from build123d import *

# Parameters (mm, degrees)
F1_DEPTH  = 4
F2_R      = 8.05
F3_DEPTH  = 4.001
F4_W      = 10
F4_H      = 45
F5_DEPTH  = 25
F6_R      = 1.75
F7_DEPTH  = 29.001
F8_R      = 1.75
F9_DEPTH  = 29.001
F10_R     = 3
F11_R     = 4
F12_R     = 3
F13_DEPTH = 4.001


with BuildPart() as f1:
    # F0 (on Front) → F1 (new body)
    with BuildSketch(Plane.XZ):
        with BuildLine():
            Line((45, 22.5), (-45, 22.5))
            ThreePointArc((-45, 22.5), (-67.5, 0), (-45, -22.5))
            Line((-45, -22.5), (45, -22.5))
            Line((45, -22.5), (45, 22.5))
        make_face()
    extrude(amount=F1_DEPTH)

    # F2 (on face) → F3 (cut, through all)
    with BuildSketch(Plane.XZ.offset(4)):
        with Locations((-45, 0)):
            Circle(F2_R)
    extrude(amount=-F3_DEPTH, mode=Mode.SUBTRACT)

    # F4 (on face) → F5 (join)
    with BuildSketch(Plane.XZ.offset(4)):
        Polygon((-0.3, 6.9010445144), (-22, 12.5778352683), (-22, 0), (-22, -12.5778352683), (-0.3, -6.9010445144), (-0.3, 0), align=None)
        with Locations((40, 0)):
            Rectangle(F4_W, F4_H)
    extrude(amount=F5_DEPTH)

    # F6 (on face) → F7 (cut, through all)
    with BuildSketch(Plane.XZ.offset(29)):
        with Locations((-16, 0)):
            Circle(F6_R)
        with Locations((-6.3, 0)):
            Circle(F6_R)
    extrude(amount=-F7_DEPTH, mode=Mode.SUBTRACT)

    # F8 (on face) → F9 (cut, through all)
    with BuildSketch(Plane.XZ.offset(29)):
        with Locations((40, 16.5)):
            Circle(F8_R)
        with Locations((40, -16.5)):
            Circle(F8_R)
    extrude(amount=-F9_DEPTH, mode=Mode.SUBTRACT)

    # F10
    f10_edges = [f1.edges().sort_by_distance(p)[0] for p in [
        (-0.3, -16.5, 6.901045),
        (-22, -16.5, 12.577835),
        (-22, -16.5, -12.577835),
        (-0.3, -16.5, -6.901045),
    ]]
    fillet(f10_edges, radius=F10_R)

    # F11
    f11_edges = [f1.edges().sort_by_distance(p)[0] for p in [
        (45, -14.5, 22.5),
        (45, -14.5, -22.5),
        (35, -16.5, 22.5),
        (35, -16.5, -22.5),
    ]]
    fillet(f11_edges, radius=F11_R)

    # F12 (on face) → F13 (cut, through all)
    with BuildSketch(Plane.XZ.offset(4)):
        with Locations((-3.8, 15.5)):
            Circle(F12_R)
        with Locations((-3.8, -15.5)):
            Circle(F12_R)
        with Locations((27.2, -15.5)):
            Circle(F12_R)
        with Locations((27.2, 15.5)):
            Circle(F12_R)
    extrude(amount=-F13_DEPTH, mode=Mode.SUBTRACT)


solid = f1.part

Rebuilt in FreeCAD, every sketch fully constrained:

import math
import FreeCAD as App
import Part
import Sketcher
from FreeCAD import Vector
Q = App.Units.Quantity


def edges_at(feature, points):
    """Names of the edges that pass closest to the given points."""
    edges = feature.Shape.Edges
    near = lambda p: min(range(len(edges)), key=lambda i: edges[i].distToShape(Part.Vertex(*p))[0])
    return sorted({f"Edge{near(p) + 1}" for p in points})


def add_polygon(sketch, points):
    """Adds a closed chain of lines whose ends are joined by coincident constraints."""
    first, n = sketch.GeometryCount, len(points)
    for a, b in zip(points, points[1:] + points[:1]):
        sketch.addGeometry(Part.LineSegment(App.Vector(*a, 0), App.Vector(*b, 0)), False)
    for i in range(n):
        sketch.addConstraint(Sketcher.Constraint("Coincident", first + i, 2, first + (i + 1) % n, 1))

doc = App.newDocument("Part")
params = doc.addObject("Spreadsheet::Sheet", "Params")
for row, (alias, value) in enumerate([
    ("sketch1_radius", "22.5 mm"),
    ("sketch1_width", "90 mm"),
    ("pad1_length", "4 mm"),
    ("sketch2_diameter", "16.1 mm"),
    ("sketch3_width", "10 mm"),
    ("sketch3_height", "45 mm"),
    ("pad2_length", "25 mm"),
    ("sketch4_diameter", "3.5 mm"),
    ("sketch5_diameter", "3.5 mm"),
    ("fillet_radius", "3 mm"),
    ("fillet2_radius", "4 mm"),
    ("sketch6_diameter", "6 mm"),
], start=1):
    params.set(f"A{row}", alias)
    params.set(f"B{row}", "=" + value)
    params.setAlias(f"B{row}", alias)

body = doc.addObject("PartDesign::Body", "Body")

sketch1 = body.newObject("Sketcher::SketchObject", "Sketch")
sketch1.AttachmentSupport = (doc.getObject("XZ_Plane"), [""])
sketch1.MapMode = "FlatFace"
sketch1.addGeometry(Part.LineSegment(Vector(45, 22, 0), Vector(-45, 22, 0)), False)
sketch1.addGeometry(Part.ArcOfCircle(Part.Circle(Vector(-45, 0, 0), Vector(0, 0, 1), 22), math.radians(90), math.radians(270)), False)
sketch1.addGeometry(Part.LineSegment(Vector(-45, -22, 0), Vector(45, -22, 0)), False)
sketch1.addGeometry(Part.LineSegment(Vector(45, -22, 0), Vector(45, 22, 0)), False)
sketch1.addConstraint(Sketcher.Constraint("Tangent", 0, 2, 1, 1))
sketch1.addConstraint(Sketcher.Constraint("Tangent", 1, 2, 2, 1))
sketch1.addConstraint(Sketcher.Constraint("Coincident", 2, 2, 3, 1))
sketch1.addConstraint(Sketcher.Constraint("Coincident", 3, 2, 0, 1))
sketch1.addConstraint(Sketcher.Constraint("Horizontal", 0))
sketch1.addConstraint(Sketcher.Constraint("Horizontal", 2))
sketch1.addConstraint(Sketcher.Constraint("Vertical", 3))
sketch1.addConstraint(Sketcher.Constraint("Symmetric", 0, 2, 2, 2, -1, 1))
sketch1.addConstraint(Sketcher.Constraint("Radius", 1, Q("22.5 mm")))
sketch1.addConstraint(Sketcher.Constraint("DistanceX", 0, 2, 0, 1, Q("90 mm")))
sketch1.setExpression("Constraints[8]", "Params.sketch1_radius")
sketch1.setExpression("Constraints[9]", "Params.sketch1_width")
pad1 = body.newObject("PartDesign::Pad", "Pad")
pad1.Profile = sketch1
pad1.setExpression("Length", "Params.pad1_length")

sketch2 = body.newObject("Sketcher::SketchObject", "Sketch001")
sketch2.AttachmentSupport = (doc.getObject("XZ_Plane"), [""])
sketch2.MapMode = "FlatFace"
sketch2.AttachmentOffset = App.Placement(Vector(0, 0, 4), App.Rotation())
sketch2.addGeometry(Part.Circle(Vector(-45, 0, 0), Vector(0, 0, 1), 8), False)
sketch2.addConstraint(Sketcher.Constraint("PointOnObject", 0, 3, -1))
sketch2.addConstraint(Sketcher.Constraint("Diameter", 0, Q("16.1 mm")))
sketch2.addConstraint(Sketcher.Constraint("DistanceX", 0, 3, -1, 1, Q("45 mm")))
sketch2.setExpression("Constraints[1]", "Params.sketch2_diameter")
pocket1 = body.newObject("PartDesign::Pocket", "Pocket")
pocket1.Profile = sketch2
pocket1.Type = "ThroughAll"

sketch3 = body.newObject("Sketcher::SketchObject", "Sketch002")
sketch3.AttachmentSupport = (doc.getObject("XZ_Plane"), [""])
sketch3.MapMode = "FlatFace"
sketch3.AttachmentOffset = App.Placement(Vector(0, 0, 4), App.Rotation())
add_polygon(sketch3, [(0, 7), (-22, 13), (-22, -13), (0, -7)])
add_polygon(sketch3, [(35, 22), (35, -22), (45, -22), (45, 22)])
sketch3.addConstraint(Sketcher.Constraint("Vertical", 1))
sketch3.addConstraint(Sketcher.Constraint("Vertical", 3))
sketch3.addConstraint(Sketcher.Constraint("Vertical", 4))
sketch3.addConstraint(Sketcher.Constraint("Horizontal", 5))
sketch3.addConstraint(Sketcher.Constraint("Vertical", 6))
sketch3.addConstraint(Sketcher.Constraint("Horizontal", 7))
sketch3.addConstraint(Sketcher.Constraint("Equal", 0, 2))
sketch3.addConstraint(Sketcher.Constraint("DistanceX", 5, 1, 5, 2, Q("10 mm")))
sketch3.addConstraint(Sketcher.Constraint("DistanceY", 4, 2, 4, 1, Q("45 mm")))
sketch3.addConstraint(Sketcher.Constraint("DistanceX", 0, 2, -1, 1, Q("22 mm")))
sketch3.addConstraint(Sketcher.Constraint("DistanceX", -1, 1, 4, 2, Q("35 mm")))
sketch3.addConstraint(Sketcher.Constraint("DistanceX", 2, 2, -1, 1, Q("0.3 mm")))
sketch3.addConstraint(Sketcher.Constraint("DistanceY", 4, 2, -1, 1, Q("22.5 mm")))
sketch3.addConstraint(Sketcher.Constraint("DistanceY", 1, 2, 1, 1, Q("25.155671 mm")))
sketch3.addConstraint(Sketcher.Constraint("DistanceY", 3, 1, 3, 2, Q("13.802089 mm")))
sketch3.addConstraint(Sketcher.Constraint("DistanceY", -1, 1, 0, 2, Q("12.577835 mm")))
sketch3.setExpression("Constraints[15]", "Params.sketch3_width")
sketch3.setExpression("Constraints[16]", "Params.sketch3_height")
pad2 = body.newObject("PartDesign::Pad", "Pad001")
pad2.Profile = sketch3
pad2.setExpression("Length", "Params.pad2_length")

sketch4 = body.newObject("Sketcher::SketchObject", "Sketch003")
sketch4.AttachmentSupport = (doc.getObject("XZ_Plane"), [""])
sketch4.MapMode = "FlatFace"
sketch4.AttachmentOffset = App.Placement(Vector(0, 0, 29), App.Rotation())
sketch4.addGeometry(Part.Circle(Vector(-16, 0, 0), Vector(0, 0, 1), 1.8), False)
sketch4.addGeometry(Part.Circle(Vector(-6.3, 0, 0), Vector(0, 0, 1), 1.8), False)
sketch4.addConstraint(Sketcher.Constraint("Equal", 0, 1))
sketch4.addConstraint(Sketcher.Constraint("PointOnObject", 0, 3, -1))
sketch4.addConstraint(Sketcher.Constraint("PointOnObject", 1, 3, -1))
sketch4.addConstraint(Sketcher.Constraint("Diameter", 0, Q("3.5 mm")))
sketch4.addConstraint(Sketcher.Constraint("DistanceX", 0, 3, -1, 1, Q("16 mm")))
sketch4.addConstraint(Sketcher.Constraint("DistanceX", 1, 3, -1, 1, Q("6.3 mm")))
sketch4.setExpression("Constraints[3]", "Params.sketch4_diameter")
pocket2 = body.newObject("PartDesign::Pocket", "Pocket001")
pocket2.Profile = sketch4
pocket2.Type = "ThroughAll"

sketch5 = body.newObject("Sketcher::SketchObject", "Sketch004")
sketch5.AttachmentSupport = (doc.getObject("XZ_Plane"), [""])
sketch5.MapMode = "FlatFace"
sketch5.AttachmentOffset = App.Placement(Vector(0, 0, 29), App.Rotation())
sketch5.addGeometry(Part.Circle(Vector(40, 16.5, 0), Vector(0, 0, 1), 1.8), False)
sketch5.addGeometry(Part.Circle(Vector(40, -16.5, 0), Vector(0, 0, 1), 1.8), False)
sketch5.addConstraint(Sketcher.Constraint("Equal", 0, 1))
sketch5.addConstraint(Sketcher.Constraint("Symmetric", 0, 3, 1, 3, -1))
sketch5.addConstraint(Sketcher.Constraint("Diameter", 0, Q("3.5 mm")))
sketch5.addConstraint(Sketcher.Constraint("DistanceX", -1, 1, 0, 3, Q("40 mm")))
sketch5.addConstraint(Sketcher.Constraint("DistanceY", 1, 3, 0, 3, Q("33 mm")))
sketch5.setExpression("Constraints[2]", "Params.sketch5_diameter")
pocket3 = body.newObject("PartDesign::Pocket", "Pocket002")
pocket3.Profile = sketch5
pocket3.Type = "ThroughAll"
doc.recompute()

fillet = body.newObject("PartDesign::Fillet", "Fillet")
fillet.Base = (pocket3, edges_at(pocket3, [
    (-0.3, -16.5, 6.901),
    (-22, -16.5, 12.578),
    (-22, -16.5, -12.578),
    (-0.3, -16.5, -6.901),
]))
fillet.setExpression("Radius", "Params.fillet_radius")
doc.recompute()

fillet2 = body.newObject("PartDesign::Fillet", "Fillet001")
fillet2.Base = (fillet, edges_at(fillet, [
    (45, -14.5, 22.5),
    (45, -14.5, -22.5),
    (35, -16.5, 22.5),
    (35, -16.5, -22.5),
]))
fillet2.setExpression("Radius", "Params.fillet2_radius")

sketch6 = body.newObject("Sketcher::SketchObject", "Sketch005")
sketch6.AttachmentSupport = (doc.getObject("XZ_Plane"), [""])
sketch6.MapMode = "FlatFace"
sketch6.AttachmentOffset = App.Placement(Vector(0, 0, 4), App.Rotation())
sketch6.addGeometry(Part.Circle(Vector(-3.8, 15.5, 0), Vector(0, 0, 1), 3), False)
sketch6.addGeometry(Part.Circle(Vector(-3.8, -15.5, 0), Vector(0, 0, 1), 3), False)
sketch6.addGeometry(Part.Circle(Vector(27.2, -15.5, 0), Vector(0, 0, 1), 3), False)
sketch6.addGeometry(Part.Circle(Vector(27.2, 15.5, 0), Vector(0, 0, 1), 3), False)
sketch6.addConstraint(Sketcher.Constraint("Equal", 0, 1))
sketch6.addConstraint(Sketcher.Constraint("Equal", 1, 2))
sketch6.addConstraint(Sketcher.Constraint("Equal", 2, 3))
sketch6.addConstraint(Sketcher.Constraint("Symmetric", 0, 3, 1, 3, -1))
sketch6.addConstraint(Sketcher.Constraint("Symmetric", 2, 3, 3, 3, -1))
sketch6.addConstraint(Sketcher.Constraint("Horizontal", 1, 3, 2, 3))
sketch6.addConstraint(Sketcher.Constraint("Diameter", 0, Q("6 mm")))
sketch6.addConstraint(Sketcher.Constraint("DistanceY", 1, 3, 0, 3, Q("31 mm")))
sketch6.addConstraint(Sketcher.Constraint("DistanceX", 1, 3, 2, 3, Q("31 mm")))
sketch6.addConstraint(Sketcher.Constraint("DistanceX", 0, 3, -1, 1, Q("3.8 mm")))
sketch6.setExpression("Constraints[6]", "Params.sketch6_diameter")
pocket4 = body.newObject("PartDesign::Pocket", "Pocket003")
pocket4.Profile = sketch6
pocket4.Type = "ThroughAll"

doc.recompute()
